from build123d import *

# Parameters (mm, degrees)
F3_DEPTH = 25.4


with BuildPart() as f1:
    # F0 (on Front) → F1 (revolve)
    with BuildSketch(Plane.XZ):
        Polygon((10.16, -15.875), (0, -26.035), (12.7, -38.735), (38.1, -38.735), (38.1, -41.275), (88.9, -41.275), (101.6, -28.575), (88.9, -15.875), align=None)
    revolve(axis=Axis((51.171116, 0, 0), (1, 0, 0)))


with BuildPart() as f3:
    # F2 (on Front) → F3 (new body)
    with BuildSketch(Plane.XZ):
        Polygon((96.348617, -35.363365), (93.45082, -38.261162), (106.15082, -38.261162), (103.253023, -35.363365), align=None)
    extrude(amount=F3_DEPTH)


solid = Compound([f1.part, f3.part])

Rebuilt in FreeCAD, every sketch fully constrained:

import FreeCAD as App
import Part
import Sketcher
from FreeCAD import Vector
Q = App.Units.Quantity


def add_polygon(sketch, points):
    """Adds a closed chain of lines whose ends are joined by coincident constraints."""
    first, n = sketch.GeometryCount, len(points)
    for a, b in zip(points, points[1:] + points[:1]):
        sketch.addGeometry(Part.LineSegment(App.Vector(*a, 0), App.Vector(*b, 0)), False)
    for i in range(n):
        sketch.addConstraint(Sketcher.Constraint("Coincident", first + i, 2, first + (i + 1) % n, 1))

doc = App.newDocument("Part")
params = doc.addObject("Spreadsheet::Sheet", "Params")
for row, (alias, value) in enumerate([
    ("sketch1_width", "1 in"),
    ("sketch1_width2", "2 in"),
    ("sketch1_width3", "3.1 in"),
    ("revolution_angle", "360 deg"),
    ("sketch2_width", "0.5 in"),
    ("pad1_length", "1 in"),
], start=1):
    params.set(f"A{row}", alias)
    params.set(f"B{row}", "=" + value)
    params.setAlias(f"B{row}", alias)

body = doc.addObject("PartDesign::Body", "Body")

sketch1 = body.newObject("Sketcher::SketchObject", "Sketch")
sketch1.AttachmentSupport = (doc.getObject("XZ_Plane"), [""])
sketch1.MapMode = "FlatFace"
add_polygon(sketch1, [(10.2, -15.9), (0, -26), (12.7, -38.7), (38.1, -38.7), (38.1, -41.3), (88.9, -41.3), (101.6, -28.6), (88.9, -15.9)])
sketch1.addConstraint(Sketcher.Constraint("Horizontal", 2))
sketch1.addConstraint(Sketcher.Constraint("Vertical", 3))
sketch1.addConstraint(Sketcher.Constraint("Horizontal", 4))
sketch1.addConstraint(Sketcher.Constraint("Horizontal", 7))
sketch1.addConstraint(Sketcher.Constraint("PointOnObject", 0, 2, -2))
sketch1.addConstraint(Sketcher.Constraint("Perpendicular", 0, 1))
sketch1.addConstraint(Sketcher.Constraint("Perpendicular", 1, 5))
sketch1.addConstraint(Sketcher.Constraint("Perpendicular", 5, 6))
sketch1.addConstraint(Sketcher.Constraint("Vertical", 4, 2, 6, 2))
sketch1.addConstraint(Sketcher.Constraint("Equal", 1, 5))
sketch1.addConstraint(Sketcher.Constraint("Equal", 5, 6))
sketch1.addConstraint(Sketcher.Constraint("DistanceX", 2, 1, 2, 2, Q("1 in")))
sketch1.addConstraint(Sketcher.Constraint("DistanceX", 4, 1, 4, 2, Q("2 in")))
sketch1.addConstraint(Sketcher.Constraint("DistanceX", 7, 2, 7, 1, Q("3.1 in")))
sketch1.addConstraint(Sketcher.Constraint("DistanceX", -1, 1, 5, 2, Q("4 in")))
sketch1.addConstraint(Sketcher.Constraint("DistanceY", 0, 2, -1, 1, Q("1.025 in")))
sketch1.setExpression("Constraints[19]", "Params.sketch1_width")
sketch1.setExpression("Constraints[20]", "Params.sketch1_width2")
sketch1.setExpression("Constraints[21]", "Params.sketch1_width3")
revolution = body.newObject("PartDesign::Revolution", "Revolution")
revolution.Profile = sketch1
revolution.ReferenceAxis = (sketch1, ["H_Axis"])
revolution.setExpression("Angle", "Params.revolution_angle")
body2 = doc.addObject("PartDesign::Body", "Body001")

sketch2 = body2.newObject("Sketcher::SketchObject", "Sketch001")
sketch2.AttachmentSupport = (doc.getObject("XZ_Plane001"), [""])
sketch2.MapMode = "FlatFace"
add_polygon(sketch2, [(96.3, -35.4), (93.5, -38.3), (106.2, -38.3), (103.3, -35.4)])
sketch2.addConstraint(Sketcher.Constraint("Horizontal", 1))
sketch2.addConstraint(Sketcher.Constraint("Horizontal", 3))
sketch2.addConstraint(Sketcher.Constraint("Perpendicular", 0, 2))
sketch2.addConstraint(Sketcher.Constraint("Equal", 0, 2))
sketch2.addConstraint(Sketcher.Constraint("DistanceX", 1, 1, 1, 2, Q("0.5 in")))
sketch2.addConstraint(Sketcher.Constraint("DistanceX", 3, 2, 3, 1, 6.904406))
sketch2.addConstraint(Sketcher.Constraint("DistanceX", -1, 1, 0, 2, 93.45082))
sketch2.addConstraint(Sketcher.Constraint("DistanceY", 0, 2, -1, 1, 38.261162))
sketch2.setExpression("Constraints[8]", "Params.sketch2_width")
pad1 = body2.newObject("PartDesign::Pad", "Pad")
pad1.Profile = sketch2
pad1.setExpression("Length", "Params.pad1_length")

doc.recompute()
